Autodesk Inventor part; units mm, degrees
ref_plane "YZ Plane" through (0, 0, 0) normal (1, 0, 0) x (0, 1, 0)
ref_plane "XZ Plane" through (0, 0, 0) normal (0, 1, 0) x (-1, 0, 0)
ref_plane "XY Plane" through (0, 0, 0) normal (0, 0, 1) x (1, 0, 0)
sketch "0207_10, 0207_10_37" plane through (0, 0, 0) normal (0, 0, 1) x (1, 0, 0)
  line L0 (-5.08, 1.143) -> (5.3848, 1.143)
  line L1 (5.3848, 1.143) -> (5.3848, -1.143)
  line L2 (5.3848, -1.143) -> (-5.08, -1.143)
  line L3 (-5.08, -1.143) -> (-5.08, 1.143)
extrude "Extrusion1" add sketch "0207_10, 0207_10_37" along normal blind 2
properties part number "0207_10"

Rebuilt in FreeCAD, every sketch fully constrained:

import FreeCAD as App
import Part
import Sketcher
Q = App.Units.Quantity

doc = App.newDocument("Part")
params = doc.addObject("Spreadsheet::Sheet", "Params")
for row, (alias, value) in enumerate([
    ("sketch1_height", "0.09 in"),
    ("sketch1_width", "0.412 in"),
    ("pad1_length", "2 mm"),
], start=1):
    params.set(f"A{row}", alias)
    params.set(f"B{row}", "=" + value)
    params.setAlias(f"B{row}", alias)

body = doc.addObject("PartDesign::Body", "Body")

sketch1 = body.newObject("Sketcher::SketchObject", "Sketch")
sketch1.AttachmentSupport = (doc.getObject("XY_Plane"), [""])
sketch1.MapMode = "FlatFace"
sketch1.addGeometry([
    Part.LineSegment(App.Vector(5.4, 1.1, 0), App.Vector(-5.1, 1.1, 0)),
    Part.LineSegment(App.Vector(-5.1, 1.1, 0), App.Vector(-5.1, -1.1, 0)),
    Part.LineSegment(App.Vector(-5.1, -1.1, 0), App.Vector(5.4, -1.1, 0)),
    Part.LineSegment(App.Vector(5.4, -1.1, 0), App.Vector(5.4, 1.1, 0)),
], False)
sketch1.addConstraint([
    Sketcher.Constraint("Coincident", 0, 2, 1, 1),
    Sketcher.Constraint("Coincident", 1, 2, 2, 1),
    Sketcher.Constraint("Coincident", 2, 2, 3, 1),
    Sketcher.Constraint("Coincident", 3, 2, 0, 1),
    Sketcher.Constraint("Horizontal", 0),
    Sketcher.Constraint("Vertical", 1),
    Sketcher.Constraint("Horizontal", 2),
    Sketcher.Constraint("Vertical", 3),
    Sketcher.Constraint("DistanceY", 1, 2, 1, 1, Q("0.09 in")),
    Sketcher.Constraint("DistanceX", 0, 2, -1, 1, Q("0.2 in")),
    Sketcher.Constraint("DistanceX", 0, 2, 0, 1, Q("0.412 in")),
    Sketcher.Constraint("DistanceY", -1, 1, 0, 2, Q("0.045 in")),
])
sketch1.setExpression("Constraints[8]", "Params.sketch1_height")
sketch1.setExpression("Constraints[10]", "Params.sketch1_width")
pad1 = body.newObject("PartDesign::Pad", "Pad")
pad1.Profile = sketch1
pad1.setExpression("Length", "Params.pad1_length")

doc.recompute()
